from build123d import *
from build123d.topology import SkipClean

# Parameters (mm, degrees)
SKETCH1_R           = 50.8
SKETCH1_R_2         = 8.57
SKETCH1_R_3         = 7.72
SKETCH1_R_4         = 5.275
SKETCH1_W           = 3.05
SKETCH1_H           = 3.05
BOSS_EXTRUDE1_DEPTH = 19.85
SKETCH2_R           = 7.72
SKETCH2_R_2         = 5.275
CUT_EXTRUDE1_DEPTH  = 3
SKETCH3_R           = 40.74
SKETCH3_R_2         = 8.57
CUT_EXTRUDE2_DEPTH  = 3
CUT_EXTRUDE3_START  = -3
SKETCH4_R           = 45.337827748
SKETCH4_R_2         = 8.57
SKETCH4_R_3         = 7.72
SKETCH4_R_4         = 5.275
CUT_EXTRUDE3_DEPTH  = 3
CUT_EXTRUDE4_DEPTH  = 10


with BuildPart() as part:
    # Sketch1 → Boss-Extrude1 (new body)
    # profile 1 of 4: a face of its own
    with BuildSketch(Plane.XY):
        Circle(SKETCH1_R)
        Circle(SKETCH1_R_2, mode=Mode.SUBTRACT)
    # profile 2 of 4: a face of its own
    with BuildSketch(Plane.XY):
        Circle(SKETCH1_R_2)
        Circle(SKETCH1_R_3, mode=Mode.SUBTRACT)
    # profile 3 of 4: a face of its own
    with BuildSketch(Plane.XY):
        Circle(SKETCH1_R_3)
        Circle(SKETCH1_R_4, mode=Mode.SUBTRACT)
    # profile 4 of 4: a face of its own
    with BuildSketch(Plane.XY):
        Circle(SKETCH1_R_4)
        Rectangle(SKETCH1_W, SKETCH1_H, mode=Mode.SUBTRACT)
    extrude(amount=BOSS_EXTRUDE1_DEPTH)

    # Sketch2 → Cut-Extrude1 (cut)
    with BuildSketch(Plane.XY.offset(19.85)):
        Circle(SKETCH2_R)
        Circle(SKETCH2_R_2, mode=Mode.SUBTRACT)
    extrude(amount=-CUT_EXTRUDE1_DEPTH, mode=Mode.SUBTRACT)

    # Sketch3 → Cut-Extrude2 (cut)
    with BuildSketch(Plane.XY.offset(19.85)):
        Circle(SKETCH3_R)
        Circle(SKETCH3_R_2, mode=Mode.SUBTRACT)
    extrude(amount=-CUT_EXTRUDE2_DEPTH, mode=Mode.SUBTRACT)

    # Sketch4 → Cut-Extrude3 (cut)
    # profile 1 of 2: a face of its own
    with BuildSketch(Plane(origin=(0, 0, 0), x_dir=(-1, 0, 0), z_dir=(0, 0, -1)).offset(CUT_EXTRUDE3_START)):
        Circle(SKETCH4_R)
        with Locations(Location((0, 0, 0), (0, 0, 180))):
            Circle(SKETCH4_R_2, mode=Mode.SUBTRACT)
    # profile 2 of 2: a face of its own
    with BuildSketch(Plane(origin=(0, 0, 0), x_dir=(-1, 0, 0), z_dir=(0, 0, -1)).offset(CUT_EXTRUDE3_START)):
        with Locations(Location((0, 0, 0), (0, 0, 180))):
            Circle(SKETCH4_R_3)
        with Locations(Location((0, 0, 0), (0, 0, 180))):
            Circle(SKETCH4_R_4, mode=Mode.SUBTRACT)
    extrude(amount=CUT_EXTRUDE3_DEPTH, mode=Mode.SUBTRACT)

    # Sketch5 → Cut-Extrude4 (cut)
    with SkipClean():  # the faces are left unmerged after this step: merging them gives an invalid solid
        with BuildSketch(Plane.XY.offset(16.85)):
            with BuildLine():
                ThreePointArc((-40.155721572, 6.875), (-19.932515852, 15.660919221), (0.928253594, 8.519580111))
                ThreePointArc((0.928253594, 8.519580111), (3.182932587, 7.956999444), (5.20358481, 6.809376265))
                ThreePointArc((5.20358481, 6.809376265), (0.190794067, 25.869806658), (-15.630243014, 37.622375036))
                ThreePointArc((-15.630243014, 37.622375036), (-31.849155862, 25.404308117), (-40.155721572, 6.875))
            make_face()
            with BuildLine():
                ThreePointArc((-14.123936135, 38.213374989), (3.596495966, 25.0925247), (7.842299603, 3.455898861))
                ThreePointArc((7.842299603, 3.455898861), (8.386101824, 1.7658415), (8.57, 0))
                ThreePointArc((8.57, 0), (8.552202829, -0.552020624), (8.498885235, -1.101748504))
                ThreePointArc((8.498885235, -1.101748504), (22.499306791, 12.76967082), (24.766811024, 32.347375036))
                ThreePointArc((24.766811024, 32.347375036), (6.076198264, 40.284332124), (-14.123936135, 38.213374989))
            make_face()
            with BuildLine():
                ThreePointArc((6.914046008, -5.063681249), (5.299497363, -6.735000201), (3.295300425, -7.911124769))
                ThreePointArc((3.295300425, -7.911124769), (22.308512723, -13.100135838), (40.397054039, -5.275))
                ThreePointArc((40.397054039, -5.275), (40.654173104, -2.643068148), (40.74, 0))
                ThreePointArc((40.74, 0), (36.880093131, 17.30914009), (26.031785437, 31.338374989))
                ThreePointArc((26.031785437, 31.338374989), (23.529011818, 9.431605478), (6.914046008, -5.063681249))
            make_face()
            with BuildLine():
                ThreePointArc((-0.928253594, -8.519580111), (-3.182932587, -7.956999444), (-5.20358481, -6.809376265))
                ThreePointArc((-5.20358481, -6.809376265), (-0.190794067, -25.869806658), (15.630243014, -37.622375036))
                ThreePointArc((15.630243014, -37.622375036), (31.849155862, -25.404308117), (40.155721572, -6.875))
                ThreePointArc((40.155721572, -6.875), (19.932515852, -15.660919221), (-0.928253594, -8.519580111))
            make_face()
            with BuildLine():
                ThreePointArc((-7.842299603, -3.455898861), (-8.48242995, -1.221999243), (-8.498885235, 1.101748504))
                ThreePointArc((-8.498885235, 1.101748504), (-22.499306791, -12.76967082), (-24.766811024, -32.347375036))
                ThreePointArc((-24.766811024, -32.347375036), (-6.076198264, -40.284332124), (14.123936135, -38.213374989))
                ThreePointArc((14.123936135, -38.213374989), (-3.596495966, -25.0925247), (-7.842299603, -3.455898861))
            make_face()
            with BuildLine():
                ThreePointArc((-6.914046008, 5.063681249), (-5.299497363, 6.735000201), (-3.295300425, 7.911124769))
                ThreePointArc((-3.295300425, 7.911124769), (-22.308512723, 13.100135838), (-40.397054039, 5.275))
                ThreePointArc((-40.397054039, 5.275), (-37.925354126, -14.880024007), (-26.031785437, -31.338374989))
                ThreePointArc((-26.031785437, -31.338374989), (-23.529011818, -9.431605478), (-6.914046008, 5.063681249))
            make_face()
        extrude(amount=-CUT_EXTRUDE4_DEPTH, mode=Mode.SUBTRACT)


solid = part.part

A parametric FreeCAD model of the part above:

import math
import FreeCAD as App
import Part
import Sketcher

V = App.Vector
Q = App.Units.Quantity


def add_polygon(sketch, points):
    """Adds a closed chain of lines whose ends are joined by coincident constraints."""
    first, n = sketch.GeometryCount, len(points)
    for a, b in zip(points, points[1:] + points[:1]):
        sketch.addGeometry(Part.LineSegment(App.Vector(*a, 0), App.Vector(*b, 0)), False)
    for i in range(n):
        sketch.addConstraint(Sketcher.Constraint("Coincident", first + i, 2, first + (i + 1) % n, 1))

doc = App.newDocument("Part")
body = doc.addObject("PartDesign::Body", "Body")

# Sketch on XY plane
sketch1 = doc.addObject("Sketcher::SketchObject", "Sketch")
body.addObject(sketch1)
sketch1.AttachmentSupport = (doc.XY_Plane, [""])
sketch1.MapMode = "FlatFace"
sketch1.addGeometry(Part.Circle(V(0, 0, 0), V(0, 0, 1), 50.8), False)  # 0
add_polygon(sketch1, [(-1.5, -1.5), (-1.5, 1.5), (1.5, 1.5), (1.5, -1.5)])  # lines 1-4
sketch1.addConstraint(Sketcher.Constraint("Vertical", 1))
sketch1.addConstraint(Sketcher.Constraint("Horizontal", 2))
sketch1.addConstraint(Sketcher.Constraint("Vertical", 3))
sketch1.addConstraint(Sketcher.Constraint("Horizontal", 4))
sketch1.addConstraint(Sketcher.Constraint("Coincident", 0, 3, -1, 1))
sketch1.addConstraint(Sketcher.Constraint("Symmetric", 1, 2, 3, 2, -1, 1))
sketch1.addConstraint(Sketcher.Constraint("Equal", 4, 1))
sketch1.addConstraint(Sketcher.Constraint("Diameter", 0, Q("101.6 mm")))
sketch1.addConstraint(Sketcher.Constraint("DistanceX", 2, 1, 2, 2, Q("3.05 mm")))
pad1 = doc.addObject("PartDesign::Pad", "Pad")
body.addObject(pad1)
pad1.Profile = sketch1
pad1.Length = 19.85

# Sketch on XY plane
sketch2 = doc.addObject("Sketcher::SketchObject", "Sketch001")
body.addObject(sketch2)
sketch2.AttachmentSupport = (doc.XY_Plane, [""])
sketch2.MapMode = "FlatFace"
sketch2.AttachmentOffset = App.Placement(V(0, 0, 19.85), App.Rotation())
sketch2.addGeometry(Part.Circle(V(0, 0, 0), V(0, 0, 1), 8), False)
sketch2.addGeometry(Part.Circle(V(0, 0, 0), V(0, 0, 1), 5), False)
sketch2.addConstraint(Sketcher.Constraint("Coincident", 0, 3, -1, 1))
sketch2.addConstraint(Sketcher.Constraint("Coincident", 1, 3, -1, 1))
sketch2.addConstraint(Sketcher.Constraint("Diameter", 0, Q("15.44 mm")))
sketch2.addConstraint(Sketcher.Constraint("Diameter", 1, Q("10.55 mm")))
pocket1 = doc.addObject("PartDesign::Pocket", "Pocket")
body.addObject(pocket1)
pocket1.Profile = sketch2
pocket1.Length = 3

# Sketch on XY plane
sketch3 = doc.addObject("Sketcher::SketchObject", "Sketch002")
body.addObject(sketch3)
sketch3.AttachmentSupport = (doc.XY_Plane, [""])
sketch3.MapMode = "FlatFace"
sketch3.AttachmentOffset = App.Placement(V(0, 0, 19.85), App.Rotation())
sketch3.addGeometry(Part.Circle(V(0, 0, 0), V(0, 0, 1), 41), False)
sketch3.addGeometry(Part.Circle(V(0, 0, 0), V(0, 0, 1), 9), False)
sketch3.addConstraint(Sketcher.Constraint("Coincident", 0, 3, -1, 1))
sketch3.addConstraint(Sketcher.Constraint("Coincident", 1, 3, -1, 1))
sketch3.addConstraint(Sketcher.Constraint("Diameter", 0, Q("81.48 mm")))
sketch3.addConstraint(Sketcher.Constraint("Diameter", 1, Q("17.14 mm")))
pocket2 = doc.addObject("PartDesign::Pocket", "Pocket001")
body.addObject(pocket2)
pocket2.Profile = sketch3
pocket2.Length = 3

# Sketch on XY plane
sketch4 = doc.addObject("Sketcher::SketchObject", "Sketch003")
body.addObject(sketch4)
sketch4.AttachmentSupport = (doc.XY_Plane, [""])
sketch4.MapMode = "FlatFace"
sketch4.AttachmentOffset = App.Placement(V(0, 0, 3), App.Rotation())
sketch4.addGeometry(Part.Circle(V(0, 0, 0), V(0, 0, 1), 45), False)
sketch4.addGeometry(Part.Circle(V(0, 0, 0), V(0, 0, 1), 9), False)
sketch4.addGeometry(Part.Circle(V(0, 0, 0), V(0, 0, 1), 8), False)
sketch4.addGeometry(Part.Circle(V(0, 0, 0), V(0, 0, 1), 5), False)
sketch4.addConstraint(Sketcher.Constraint("Coincident", 0, 3, -1, 1))
sketch4.addConstraint(Sketcher.Constraint("Coincident", 1, 3, -1, 1))
sketch4.addConstraint(Sketcher.Constraint("Coincident", 2, 3, -1, 1))
sketch4.addConstraint(Sketcher.Constraint("Coincident", 3, 3, -1, 1))
sketch4.addConstraint(Sketcher.Constraint("Diameter", 1, Q("17.14 mm")))
sketch4.addConstraint(Sketcher.Constraint("Diameter", 2, Q("15.44 mm")))
sketch4.addConstraint(Sketcher.Constraint("Diameter", 3, Q("10.55 mm")))
sketch4.addConstraint(Sketcher.Constraint("Diameter", 0, Q("90.675655 mm")))
pocket3 = doc.addObject("PartDesign::Pocket", "Pocket002")
body.addObject(pocket3)
pocket3.Profile = sketch4
pocket3.Length = 3

# Sketch on XY plane
sketch5 = doc.addObject("Sketcher::SketchObject", "Sketch004")
body.addObject(sketch5)
sketch5.AttachmentSupport = (doc.XY_Plane, [""])
sketch5.MapMode = "FlatFace"
sketch5.AttachmentOffset = App.Placement(V(0, 0, 16.85), App.Rotation())
sketch5.addGeometry(Part.ArcOfCircle(Part.Circle(V(-18.7, -14.8, 0), V(0, 0, 1), 30.5), math.radians(50), math.radians(135)), False)
sketch5.addGeometry(Part.ArcOfCircle(Part.Circle(V(0, 0, 0), V(0, 0, 1), 8.6), math.radians(53), math.radians(84)), False)
sketch5.addGeometry(Part.ArcOfCircle(Part.Circle(V(-24.5, 9.2, 0), V(0, 0, 1), 29.8), math.radians(-5), math.radians(73)), False)
sketch5.addGeometry(Part.ArcOfCircle(Part.Circle(V(0, 0, 0), V(0, 0, 1), 40.7), math.radians(113), math.radians(170)), False)
sketch5.addGeometry(Part.ArcOfCircle(Part.Circle(V(-22.2, 8.8, 0), V(0, 0, 1), 30.5), math.radians(-10), math.radians(75)), False)
sketch5.addGeometry(Part.ArcOfCircle(Part.Circle(V(0, 0, 0), V(0, 0, 1), 8.6), math.radians(0), math.radians(24)), False)
sketch5.addGeometry(Part.ArcOfCircle(Part.Circle(V(0, 0, 0), V(0, 0, 1), 8.6), math.radians(-7.39), math.radians(0)), False)
sketch5.addGeometry(Part.ArcOfCircle(Part.Circle(V(-4.3, 25.8, 0), V(0, 0, 1), 29.8), math.radians(-65), math.radians(13)), False)
sketch5.addGeometry(Part.ArcOfCircle(Part.Circle(V(0, 0, 0), V(0, 0, 1), 40.7), math.radians(53), math.radians(110)), False)
sketch5.addGeometry(Part.ArcOfCircle(Part.Circle(V(0, 0, 0), V(0, 0, 1), 8.6), math.radians(-67), math.radians(-36)), False)
sketch5.addGeometry(Part.ArcOfCircle(Part.Circle(V(20.2, 16.6, 0), V(0, 0, 1), 29.8), math.radians(-125), math.radians(-47)), False)
sketch5.addGeometry(Part.ArcOfCircle(Part.Circle(V(0, 0, 0), V(0, 0, 1), 40.7), math.radians(-7.44), math.radians(0)), False)
sketch5.addGeometry(Part.ArcOfCircle(Part.Circle(V(0, 0, 0), V(0, 0, 1), 40.7), math.radians(0), math.radians(50)), False)
sketch5.addGeometry(Part.ArcOfCircle(Part.Circle(V(-3.5, 23.6, 0), V(0, 0, 1), 30.5), math.radians(-70), math.radians(15)), False)
sketch5.addGeometry(Part.ArcOfCircle(Part.Circle(V(0, 0, 0), V(0, 0, 1), 8.6), math.radians(-127), math.radians(-96)), False)
sketch5.addGeometry(Part.ArcOfCircle(Part.Circle(V(24.5, -9.2, 0), V(0, 0, 1), 29.8), math.radians(175), math.radians(253)), False)
sketch5.addGeometry(Part.ArcOfCircle(Part.Circle(V(0, 0, 0), V(0, 0, 1), 40.7), math.radians(-67), math.radians(-10)), False)
sketch5.addGeometry(Part.ArcOfCircle(Part.Circle(V(18.7, 14.8, 0), V(0, 0, 1), 30.5), math.radians(-130), math.radians(-45)), False)
sketch5.addGeometry(Part.ArcOfCircle(Part.Circle(V(0, 0, 0), V(0, 0, 1), 8.6), math.radians(173), math.radians(204)), False)
sketch5.addGeometry(Part.ArcOfCircle(Part.Circle(V(4.3, -25.8, 0), V(0, 0, 1), 29.8), math.radians(115), math.radians(193)), False)
sketch5.addGeometry(Part.ArcOfCircle(Part.Circle(V(0, 0, 0), V(0, 0, 1), 40.7), math.radians(-127), math.radians(-70)), False)
sketch5.addGeometry(Part.ArcOfCircle(Part.Circle(V(22.2, -8.8, 0), V(0, 0, 1), 30.5), math.radians(170), math.radians(255)), False)
sketch5.addGeometry(Part.ArcOfCircle(Part.Circle(V(0, 0, 0), V(0, 0, 1), 8.6), math.radians(113), math.radians(144)), False)
sketch5.addGeometry(Part.ArcOfCircle(Part.Circle(V(-20.2, -16.6, 0), V(0, 0, 1), 29.8), math.radians(55), math.radians(133)), False)
sketch5.addGeometry(Part.ArcOfCircle(Part.Circle(V(0, 0, 0), V(0, 0, 1), 40.7), math.radians(173), math.radians(230)), False)
sketch5.addGeometry(Part.ArcOfCircle(Part.Circle(V(3.5, -23.6, 0), V(0, 0, 1), 30.5), math.radians(110), math.radians(195)), False)
sketch5.addConstraint(Sketcher.Constraint("Coincident", 0, 1, 1, 2))
sketch5.addConstraint(Sketcher.Constraint("Coincident", 1, 1, 2, 1))
sketch5.addConstraint(Sketcher.Constraint("Coincident", 2, 2, 3, 1))
sketch5.addConstraint(Sketcher.Constraint("Coincident", 3, 2, 0, 2))
sketch5.addConstraint(Sketcher.Constraint("Coincident", 4, 1, 5, 2))
sketch5.addConstraint(Sketcher.Constraint("Tangent", 5, 1, 6, 2))
sketch5.addConstraint(Sketcher.Constraint("Coincident", 6, 1, 7, 1))
sketch5.addConstraint(Sketcher.Constraint("Coincident", 7, 2, 8, 1))
sketch5.addConstraint(Sketcher.Constraint("Coincident", 8, 2, 4, 2))
sketch5.addConstraint(Sketcher.Constraint("Coincident", 9, 1, 10, 1))
sketch5.addConstraint(Sketcher.Constraint("Coincident", 10, 2, 11, 1))
sketch5.addConstraint(Sketcher.Constraint("Tangent", 11, 2, 12, 1))
sketch5.addConstraint(Sketcher.Constraint("Coincident", 12, 2, 13, 2))
sketch5.addConstraint(Sketcher.Constraint("Coincident", 13, 1, 9, 2))
sketch5.addConstraint(Sketcher.Constraint("Coincident", 14, 1, 15, 1))
sketch5.addConstraint(Sketcher.Constraint("Coincident", 15, 2, 16, 1))
sketch5.addConstraint(Sketcher.Constraint("Coincident", 16, 2, 17, 2))
sketch5.addConstraint(Sketcher.Constraint("Coincident", 17, 1, 14, 2))
sketch5.addConstraint(Sketcher.Constraint("Coincident", 18, 1, 19, 1))
sketch5.addConstraint(Sketcher.Constraint("Coincident", 19, 2, 20, 1))
sketch5.addConstraint(Sketcher.Constraint("Coincident", 20, 2, 21, 2))
sketch5.addConstraint(Sketcher.Constraint("Coincident", 21, 1, 18, 2))
sketch5.addConstraint(Sketcher.Constraint("Coincident", 22, 1, 23, 1))
sketch5.addConstraint(Sketcher.Constraint("Coincident", 23, 2, 24, 1))
sketch5.addConstraint(Sketcher.Constraint("Coincident", 24, 2, 25, 2))
sketch5.addConstraint(Sketcher.Constraint("Coincident", 25, 1, 22, 2))
sketch5.addConstraint(Sketcher.Constraint("Coincident", 1, 3, -1, 1))
sketch5.addConstraint(Sketcher.Constraint("Coincident", 3, 3, -1, 1))
sketch5.addConstraint(Sketcher.Constraint("Coincident", 5, 3, -1, 1))
sketch5.addConstraint(Sketcher.Constraint("Coincident", 8, 3, -1, 1))
sketch5.addConstraint(Sketcher.Constraint("Coincident", 9, 3, -1, 1))
sketch5.addConstraint(Sketcher.Constraint("Coincident", 11, 3, -1, 1))
sketch5.addConstraint(Sketcher.Constraint("Coincident", 14, 3, -1, 1))
sketch5.addConstraint(Sketcher.Constraint("Coincident", 16, 3, -1, 1))
sketch5.addConstraint(Sketcher.Constraint("Coincident", 18, 3, -1, 1))
sketch5.addConstraint(Sketcher.Constraint("Coincident", 20, 3, -1, 1))
sketch5.addConstraint(Sketcher.Constraint("Coincident", 22, 3, -1, 1))
sketch5.addConstraint(Sketcher.Constraint("Coincident", 24, 3, -1, 1))
sketch5.addConstraint(Sketcher.Constraint("Equal", 0, 4))
sketch5.addConstraint(Sketcher.Constraint("Equal", 1, 5))
sketch5.addConstraint(Sketcher.Constraint("Equal", 5, 6))
sketch5.addConstraint(Sketcher.Constraint("Equal", 2, 7))
sketch5.addConstraint(Sketcher.Constraint("Equal", 3, 8))
sketch5.addConstraint(Sketcher.Constraint("Equal", 6, 9))
sketch5.addConstraint(Sketcher.Constraint("Equal", 7, 10))
sketch5.addConstraint(Sketcher.Constraint("Equal", 8, 11))
sketch5.addConstraint(Sketcher.Constraint("Equal", 11, 12))
sketch5.addConstraint(Sketcher.Constraint("Equal", 4, 13))
sketch5.addConstraint(Sketcher.Constraint("Equal", 9, 14))
sketch5.addConstraint(Sketcher.Constraint("Equal", 10, 15))
sketch5.addConstraint(Sketcher.Constraint("Equal", 12, 16))
sketch5.addConstraint(Sketcher.Constraint("Equal", 13, 17))
sketch5.addConstraint(Sketcher.Constraint("Equal", 14, 18))
sketch5.addConstraint(Sketcher.Constraint("Equal", 15, 19))
sketch5.addConstraint(Sketcher.Constraint("Equal", 16, 20))
sketch5.addConstraint(Sketcher.Constraint("Equal", 17, 21))
sketch5.addConstraint(Sketcher.Constraint("Equal", 18, 22))
sketch5.addConstraint(Sketcher.Constraint("Equal", 19, 23))
sketch5.addConstraint(Sketcher.Constraint("Equal", 20, 24))
sketch5.addConstraint(Sketcher.Constraint("Equal", 21, 25))
sketch5.addConstraint(Sketcher.Constraint("Symmetric", 2, 3, 15, 3, -1, 1))
sketch5.addConstraint(Sketcher.Constraint("Symmetric", 0, 3, 17, 3, -1, 1))
sketch5.addConstraint(Sketcher.Constraint("Symmetric", 7, 3, 19, 3, -1, 1))
sketch5.addConstraint(Sketcher.Constraint("Symmetric", 4, 3, 21, 3, -1, 1))
sketch5.addConstraint(Sketcher.Constraint("Symmetric", 10, 3, 23, 3, -1, 1))
sketch5.addConstraint(Sketcher.Constraint("Symmetric", 13, 3, 25, 3, -1, 1))
sketch5.addConstraint(Sketcher.Constraint("PointOnObject", 5, 1, -1))
sketch5.addConstraint(Sketcher.Constraint("PointOnObject", 11, 2, -1))
sketch5.addConstraint(Sketcher.Constraint("Radius", 0, Q("30.5 mm")))
sketch5.addConstraint(Sketcher.Constraint("Radius", 1, Q("8.57 mm")))
sketch5.addConstraint(Sketcher.Constraint("Radius", 3, Q("40.74 mm")))
sketch5.addConstraint(Sketcher.Constraint("DistanceY", 16, 2, 10, 2, Q("1.6 mm")))
sketch5.addConstraint(Sketcher.Constraint("Radius", 2, Q("29.77155 mm")))
sketch5.addConstraint(Sketcher.Constraint("DistanceY", -1, 1, 3, 2, Q("6.875 mm")))
sketch5.addConstraint(Sketcher.Constraint("DistanceY", 1, 1, 7, 2, Q("25.537999 mm")))
sketch5.addConstraint(Sketcher.Constraint("DistanceY", 2, 2, 8, 2, Q("0.591 mm")))
sketch5.addConstraint(Sketcher.Constraint("DistanceY", 12, 2, 7, 2, Q("1.009 mm")))
sketch5.addConstraint(Sketcher.Constraint("DistanceX", -1, 1, 4, 1, Q("7.8423 mm")))
sketch5.addConstraint(Sketcher.Constraint("DistanceX", -1, 1, 9, 1, Q("3.2953 mm")))
sketch5.addConstraint(Sketcher.Constraint("DistanceY", 13, 3, 7, 3, Q("2.177801 mm")))
sketch5.addConstraint(Sketcher.Constraint("DistanceY", 17, 3, 7, 2, Q("17.532701 mm")))
sketch5.addConstraint(Sketcher.Constraint("DistanceX", 13, 3, 7, 2, Q("28.240402 mm")))
sketch5.addConstraint(Sketcher.Constraint("DistanceX", 17, 3, 12, 2, Q("7.319199 mm")))
sketch5.addConstraint(Sketcher.Constraint("DistanceY", -1, 1, 4, 3, Q("8.798238 mm")))
pocket4 = doc.addObject("PartDesign::Pocket", "Pocket003")
body.addObject(pocket4)
pocket4.Profile = sketch5
pocket4.Length = 10

doc.recompute()
